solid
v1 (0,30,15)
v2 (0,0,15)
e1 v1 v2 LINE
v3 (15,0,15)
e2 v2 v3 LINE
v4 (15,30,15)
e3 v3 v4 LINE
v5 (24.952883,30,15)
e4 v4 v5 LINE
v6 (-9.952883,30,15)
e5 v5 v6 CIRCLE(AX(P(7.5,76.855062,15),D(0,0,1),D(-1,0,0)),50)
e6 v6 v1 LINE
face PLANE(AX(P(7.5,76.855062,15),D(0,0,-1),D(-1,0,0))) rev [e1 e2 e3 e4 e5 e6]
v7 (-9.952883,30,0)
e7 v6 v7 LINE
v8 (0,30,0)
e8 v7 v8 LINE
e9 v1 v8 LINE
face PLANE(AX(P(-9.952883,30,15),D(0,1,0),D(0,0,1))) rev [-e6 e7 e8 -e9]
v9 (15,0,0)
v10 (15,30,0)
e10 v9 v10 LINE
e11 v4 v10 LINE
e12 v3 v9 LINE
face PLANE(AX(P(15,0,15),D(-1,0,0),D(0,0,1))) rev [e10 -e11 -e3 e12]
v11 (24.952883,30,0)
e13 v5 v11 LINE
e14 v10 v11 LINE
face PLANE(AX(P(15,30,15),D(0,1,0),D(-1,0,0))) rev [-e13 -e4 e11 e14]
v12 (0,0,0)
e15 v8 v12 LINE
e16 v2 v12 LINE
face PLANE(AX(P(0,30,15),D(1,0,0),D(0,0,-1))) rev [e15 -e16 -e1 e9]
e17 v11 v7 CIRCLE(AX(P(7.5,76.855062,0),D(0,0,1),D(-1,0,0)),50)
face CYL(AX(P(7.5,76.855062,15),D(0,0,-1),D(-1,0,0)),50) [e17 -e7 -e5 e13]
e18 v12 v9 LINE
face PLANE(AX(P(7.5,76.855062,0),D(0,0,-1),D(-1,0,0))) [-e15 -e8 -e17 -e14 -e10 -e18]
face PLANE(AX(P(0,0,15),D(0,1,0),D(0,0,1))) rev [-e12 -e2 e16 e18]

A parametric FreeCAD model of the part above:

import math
import FreeCAD as App
import Part
import Sketcher

doc = App.newDocument("Part")
params = doc.addObject("Spreadsheet::Sheet", "Params")
for row, (alias, value) in enumerate([
    ("sketch1_radius", "50 mm"),
    ("sketch1_width", "15 mm"),
    ("sketch1_height", "30 mm"),
    ("pad1_length", "15 mm"),
], start=1):
    params.set(f"A{row}", alias)
    params.set(f"B{row}", "=" + value)
    params.setAlias(f"B{row}", alias)

body = doc.addObject("PartDesign::Body", "Body")

sketch1 = doc.addObject("Sketcher::SketchObject", "Sketch")
body.addObject(sketch1)
sketch1.AttachmentSupport = (doc.XY_Plane, [""])
sketch1.MapMode = "FlatFace"
sketch1.addGeometry(Part.LineSegment(App.Vector(-10, 30, 0), App.Vector(0, 30, 0)), False)
sketch1.addGeometry(Part.LineSegment(App.Vector(0, 30, 0), App.Vector(0, 0, 0)), False)
sketch1.addGeometry(Part.LineSegment(App.Vector(0, 0, 0), App.Vector(15, 0, 0)), False)
sketch1.addGeometry(Part.LineSegment(App.Vector(15, 0, 0), App.Vector(15, 30, 0)), False)
sketch1.addGeometry(Part.LineSegment(App.Vector(15, 30, 0), App.Vector(25, 30, 0)), False)
sketch1.addGeometry(Part.ArcOfCircle(Part.Circle(App.Vector(8, 77, 0), App.Vector(0, 0, 1), 50), math.radians(-70), math.radians(250)), False)
sketch1.addConstraint(Sketcher.Constraint("Coincident", 0, 2, 1, 1))
sketch1.addConstraint(Sketcher.Constraint("Coincident", 1, 2, 2, 1))
sketch1.addConstraint(Sketcher.Constraint("Coincident", 2, 2, 3, 1))
sketch1.addConstraint(Sketcher.Constraint("Coincident", 3, 2, 4, 1))
sketch1.addConstraint(Sketcher.Constraint("Coincident", 4, 2, 5, 1))
sketch1.addConstraint(Sketcher.Constraint("Coincident", 5, 2, 0, 1))
sketch1.addConstraint(Sketcher.Constraint("Horizontal", 0))
sketch1.addConstraint(Sketcher.Constraint("Vertical", 1))
sketch1.addConstraint(Sketcher.Constraint("Horizontal", 2))
sketch1.addConstraint(Sketcher.Constraint("Vertical", 3))
sketch1.addConstraint(Sketcher.Constraint("Horizontal", 4))
sketch1.addConstraint(Sketcher.Constraint("Coincident", 1, 2, -1, 1))
sketch1.addConstraint(Sketcher.Constraint("Horizontal", 0, 2, 3, 2))
sketch1.addConstraint(Sketcher.Constraint("Equal", 0, 4))
sketch1.addConstraint(Sketcher.Constraint("Radius", 5, 50.0))
sketch1.addConstraint(Sketcher.Constraint("DistanceX", 2, 1, 2, 2, 15.0))
sketch1.addConstraint(Sketcher.Constraint("DistanceY", 1, 2, 1, 1, 30.0))
sketch1.addConstraint(Sketcher.Constraint("DistanceX", 0, 1, 0, 2, 9.952883))
sketch1.setExpression("Constraints[14]", "Params.sketch1_radius")
sketch1.setExpression("Constraints[15]", "Params.sketch1_width")
sketch1.setExpression("Constraints[16]", "Params.sketch1_height")
pad1 = doc.addObject("PartDesign::Pad", "Pad")
body.addObject(pad1)
pad1.Profile = sketch1
pad1.setExpression("Length", "Params.pad1_length")

doc.recompute()
